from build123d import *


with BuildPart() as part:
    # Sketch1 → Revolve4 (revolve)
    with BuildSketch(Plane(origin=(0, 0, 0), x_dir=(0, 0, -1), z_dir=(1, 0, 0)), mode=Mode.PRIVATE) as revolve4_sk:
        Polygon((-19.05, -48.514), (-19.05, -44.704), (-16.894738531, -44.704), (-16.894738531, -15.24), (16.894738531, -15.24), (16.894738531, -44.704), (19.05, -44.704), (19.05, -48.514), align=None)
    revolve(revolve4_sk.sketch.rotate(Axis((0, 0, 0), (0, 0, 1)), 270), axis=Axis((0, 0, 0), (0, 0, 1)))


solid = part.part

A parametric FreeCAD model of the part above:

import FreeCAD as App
import Part
import Sketcher

V = App.Vector
Q = App.Units.Quantity


def add_polygon(sketch, points):
    """Adds a closed chain of lines whose ends are joined by coincident constraints."""
    first, n = sketch.GeometryCount, len(points)
    for a, b in zip(points, points[1:] + points[:1]):
        sketch.addGeometry(Part.LineSegment(App.Vector(*a, 0), App.Vector(*b, 0)), False)
    for i in range(n):
        sketch.addConstraint(Sketcher.Constraint("Coincident", first + i, 2, first + (i + 1) % n, 1))

doc = App.newDocument("Part")
body = doc.addObject("PartDesign::Body", "Body")

sketch1 = doc.addObject("Sketcher::SketchObject", "Sketch")
body.addObject(sketch1)
sketch1.AttachmentSupport = (doc.YZ_Plane, [""])
sketch1.MapMode = "FlatFace"
add_polygon(sketch1, [(-44.704, 19.05), (-48.514, 19.05), (-48.514, -19.05), (-44.704, -19.05), (-44.704, -16.894739), (-15.24, -16.894739), (-15.24, 16.894739), (-44.704, 16.894739)])
sketch1.addConstraint([
    Sketcher.Constraint("Horizontal", 0),
    Sketcher.Constraint("Vertical", 1),
    Sketcher.Constraint("Horizontal", 2),
    Sketcher.Constraint("Vertical", 3),
    Sketcher.Constraint("Horizontal", 4),
    Sketcher.Constraint("Vertical", 5),
    Sketcher.Constraint("Horizontal", 6),
    Sketcher.Constraint("Vertical", 7),
    Sketcher.Constraint("Symmetric", 3, 2, 6, 2, -1),
    Sketcher.Constraint("Equal", 3, 7),
    Sketcher.Constraint("DistanceY", 1, 2, 1, 1, Q("1.5 in")),
    Sketcher.Constraint("DistanceX", 0, 2, 0, 1, Q("0.15 in")),
    Sketcher.Constraint("DistanceX", 4, 1, 4, 2, Q("1.16 in")),
    Sketcher.Constraint("DistanceX", 4, 2, -1, 1, Q("0.6 in")),
    Sketcher.Constraint("DistanceY", 3, 1, 3, 2, Q("2.155261 mm")),
])
revolution = doc.addObject("PartDesign::Revolution", "Revolution")
body.addObject(revolution)
revolution.Profile = sketch1
revolution.ReferenceAxis = (sketch1, ["V_Axis"])
revolution.Angle = 360

doc.recompute()
